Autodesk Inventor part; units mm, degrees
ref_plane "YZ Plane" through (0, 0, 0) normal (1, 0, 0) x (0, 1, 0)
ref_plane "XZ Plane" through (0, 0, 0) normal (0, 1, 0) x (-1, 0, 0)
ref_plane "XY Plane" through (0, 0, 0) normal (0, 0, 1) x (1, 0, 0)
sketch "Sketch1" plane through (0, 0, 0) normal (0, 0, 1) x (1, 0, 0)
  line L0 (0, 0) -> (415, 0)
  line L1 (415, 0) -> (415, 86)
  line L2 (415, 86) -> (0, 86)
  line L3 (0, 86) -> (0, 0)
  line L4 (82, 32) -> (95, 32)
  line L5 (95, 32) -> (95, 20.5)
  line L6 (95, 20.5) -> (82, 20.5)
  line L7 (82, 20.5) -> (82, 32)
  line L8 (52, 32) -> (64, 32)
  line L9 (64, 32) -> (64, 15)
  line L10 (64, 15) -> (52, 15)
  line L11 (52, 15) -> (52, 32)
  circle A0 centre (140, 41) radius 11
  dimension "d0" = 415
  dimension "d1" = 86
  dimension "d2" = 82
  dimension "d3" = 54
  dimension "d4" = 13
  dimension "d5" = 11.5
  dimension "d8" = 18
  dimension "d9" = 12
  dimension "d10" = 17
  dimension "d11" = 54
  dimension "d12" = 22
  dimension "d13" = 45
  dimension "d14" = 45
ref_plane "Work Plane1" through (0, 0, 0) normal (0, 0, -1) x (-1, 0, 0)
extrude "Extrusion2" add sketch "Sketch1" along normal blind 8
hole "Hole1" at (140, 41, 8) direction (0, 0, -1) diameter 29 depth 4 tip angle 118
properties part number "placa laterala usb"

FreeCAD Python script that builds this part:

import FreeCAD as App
import Part
import Sketcher

V = App.Vector


def add_polygon(sketch, points):
    """Adds a closed chain of lines whose ends are joined by coincident constraints."""
    first, n = sketch.GeometryCount, len(points)
    for a, b in zip(points, points[1:] + points[:1]):
        sketch.addGeometry(Part.LineSegment(App.Vector(*a, 0), App.Vector(*b, 0)), False)
    for i in range(n):
        sketch.addConstraint(Sketcher.Constraint("Coincident", first + i, 2, first + (i + 1) % n, 1))

doc = App.newDocument("Part")
body = doc.addObject("PartDesign::Body", "Body")

sketch1 = body.newObject("Sketcher::SketchObject", "Sketch")
sketch1.AttachmentSupport = (doc.getObject("XY_Plane"), [""])
sketch1.MapMode = "FlatFace"
add_polygon(sketch1, [(0, 86), (0, 0), (415, 0), (415, 86)])
add_polygon(sketch1, [(52, 15), (52, 32), (64, 32), (64, 15)])
add_polygon(sketch1, [(82, 20.5), (82, 32), (95, 32), (95, 20.5)])
sketch1.addGeometry(Part.Circle(V(140, 41, 0), V(0, 0, 1), 11), False)
sketch1.addConstraint(Sketcher.Constraint("Vertical", 0))
sketch1.addConstraint(Sketcher.Constraint("Horizontal", 1))
sketch1.addConstraint(Sketcher.Constraint("Vertical", 2))
sketch1.addConstraint(Sketcher.Constraint("Horizontal", 3))
sketch1.addConstraint(Sketcher.Constraint("Vertical", 4))
sketch1.addConstraint(Sketcher.Constraint("Horizontal", 5))
sketch1.addConstraint(Sketcher.Constraint("Vertical", 6))
sketch1.addConstraint(Sketcher.Constraint("Horizontal", 7))
sketch1.addConstraint(Sketcher.Constraint("Vertical", 8))
sketch1.addConstraint(Sketcher.Constraint("Horizontal", 9))
sketch1.addConstraint(Sketcher.Constraint("Vertical", 10))
sketch1.addConstraint(Sketcher.Constraint("Horizontal", 11))
sketch1.addConstraint(Sketcher.Constraint("Coincident", 0, 2, -1, 1))
sketch1.addConstraint(Sketcher.Constraint("Horizontal", 5, 2, 8, 2))
sketch1.addConstraint(Sketcher.Constraint("Diameter", 12, 22.0))
sketch1.addConstraint(Sketcher.Constraint("DistanceX", 1, 1, 1, 2, 415.0))
sketch1.addConstraint(Sketcher.Constraint("DistanceX", 5, 1, 5, 2, 12.0))
sketch1.addConstraint(Sketcher.Constraint("DistanceX", 9, 1, 9, 2, 13.0))
sketch1.addConstraint(Sketcher.Constraint("DistanceY", 0, 2, 0, 1, 86.0))
sketch1.addConstraint(Sketcher.Constraint("DistanceY", 4, 1, 4, 2, 17.0))
sketch1.addConstraint(Sketcher.Constraint("DistanceY", 8, 1, 8, 2, 11.5))
sketch1.addConstraint(Sketcher.Constraint("DistanceX", -1, 1, 8, 2, 82.0))
sketch1.addConstraint(Sketcher.Constraint("DistanceY", 12, 3, 2, 2, 45.0))
sketch1.addConstraint(Sketcher.Constraint("DistanceY", 4, 2, 3, 2, 54.0))
sketch1.addConstraint(Sketcher.Constraint("DistanceX", 5, 2, 8, 2, 18.0))
sketch1.addConstraint(Sketcher.Constraint("DistanceX", 9, 2, 12, 3, 45.0))
pad1 = body.newObject("PartDesign::Pad", "Pad")
pad1.Profile = sketch1
pad1.Length = 8

sketch2 = body.newObject("Sketcher::SketchObject", "Sketch001")
sketch2.AttachmentSupport = (doc.getObject("XY_Plane"), [""])
sketch2.MapMode = "FlatFace"
sketch2.AttachmentOffset = App.Placement(V(0, 0, 8), App.Rotation())
sketch2.addGeometry(Part.Circle(V(140, 41, 0), V(0, 0, 1), 14.5), False)
sketch2.addConstraint(Sketcher.Constraint("Diameter", 0, 29.0))
sketch2.addConstraint(Sketcher.Constraint("DistanceX", -1, 1, 0, 3, 140.0))
sketch2.addConstraint(Sketcher.Constraint("DistanceY", -1, 1, 0, 3, 41.0))
doc.recompute()
hole = body.newObject("PartDesign::Hole", "Hole")
hole.Profile = sketch2
hole.ThreadType = "None"
hole.Diameter = 29
hole.DepthType = "Dimension"
hole.Depth = 4
hole.DrillPoint = "Angled"
hole.DrillPointAngle = 118

doc.recompute()
